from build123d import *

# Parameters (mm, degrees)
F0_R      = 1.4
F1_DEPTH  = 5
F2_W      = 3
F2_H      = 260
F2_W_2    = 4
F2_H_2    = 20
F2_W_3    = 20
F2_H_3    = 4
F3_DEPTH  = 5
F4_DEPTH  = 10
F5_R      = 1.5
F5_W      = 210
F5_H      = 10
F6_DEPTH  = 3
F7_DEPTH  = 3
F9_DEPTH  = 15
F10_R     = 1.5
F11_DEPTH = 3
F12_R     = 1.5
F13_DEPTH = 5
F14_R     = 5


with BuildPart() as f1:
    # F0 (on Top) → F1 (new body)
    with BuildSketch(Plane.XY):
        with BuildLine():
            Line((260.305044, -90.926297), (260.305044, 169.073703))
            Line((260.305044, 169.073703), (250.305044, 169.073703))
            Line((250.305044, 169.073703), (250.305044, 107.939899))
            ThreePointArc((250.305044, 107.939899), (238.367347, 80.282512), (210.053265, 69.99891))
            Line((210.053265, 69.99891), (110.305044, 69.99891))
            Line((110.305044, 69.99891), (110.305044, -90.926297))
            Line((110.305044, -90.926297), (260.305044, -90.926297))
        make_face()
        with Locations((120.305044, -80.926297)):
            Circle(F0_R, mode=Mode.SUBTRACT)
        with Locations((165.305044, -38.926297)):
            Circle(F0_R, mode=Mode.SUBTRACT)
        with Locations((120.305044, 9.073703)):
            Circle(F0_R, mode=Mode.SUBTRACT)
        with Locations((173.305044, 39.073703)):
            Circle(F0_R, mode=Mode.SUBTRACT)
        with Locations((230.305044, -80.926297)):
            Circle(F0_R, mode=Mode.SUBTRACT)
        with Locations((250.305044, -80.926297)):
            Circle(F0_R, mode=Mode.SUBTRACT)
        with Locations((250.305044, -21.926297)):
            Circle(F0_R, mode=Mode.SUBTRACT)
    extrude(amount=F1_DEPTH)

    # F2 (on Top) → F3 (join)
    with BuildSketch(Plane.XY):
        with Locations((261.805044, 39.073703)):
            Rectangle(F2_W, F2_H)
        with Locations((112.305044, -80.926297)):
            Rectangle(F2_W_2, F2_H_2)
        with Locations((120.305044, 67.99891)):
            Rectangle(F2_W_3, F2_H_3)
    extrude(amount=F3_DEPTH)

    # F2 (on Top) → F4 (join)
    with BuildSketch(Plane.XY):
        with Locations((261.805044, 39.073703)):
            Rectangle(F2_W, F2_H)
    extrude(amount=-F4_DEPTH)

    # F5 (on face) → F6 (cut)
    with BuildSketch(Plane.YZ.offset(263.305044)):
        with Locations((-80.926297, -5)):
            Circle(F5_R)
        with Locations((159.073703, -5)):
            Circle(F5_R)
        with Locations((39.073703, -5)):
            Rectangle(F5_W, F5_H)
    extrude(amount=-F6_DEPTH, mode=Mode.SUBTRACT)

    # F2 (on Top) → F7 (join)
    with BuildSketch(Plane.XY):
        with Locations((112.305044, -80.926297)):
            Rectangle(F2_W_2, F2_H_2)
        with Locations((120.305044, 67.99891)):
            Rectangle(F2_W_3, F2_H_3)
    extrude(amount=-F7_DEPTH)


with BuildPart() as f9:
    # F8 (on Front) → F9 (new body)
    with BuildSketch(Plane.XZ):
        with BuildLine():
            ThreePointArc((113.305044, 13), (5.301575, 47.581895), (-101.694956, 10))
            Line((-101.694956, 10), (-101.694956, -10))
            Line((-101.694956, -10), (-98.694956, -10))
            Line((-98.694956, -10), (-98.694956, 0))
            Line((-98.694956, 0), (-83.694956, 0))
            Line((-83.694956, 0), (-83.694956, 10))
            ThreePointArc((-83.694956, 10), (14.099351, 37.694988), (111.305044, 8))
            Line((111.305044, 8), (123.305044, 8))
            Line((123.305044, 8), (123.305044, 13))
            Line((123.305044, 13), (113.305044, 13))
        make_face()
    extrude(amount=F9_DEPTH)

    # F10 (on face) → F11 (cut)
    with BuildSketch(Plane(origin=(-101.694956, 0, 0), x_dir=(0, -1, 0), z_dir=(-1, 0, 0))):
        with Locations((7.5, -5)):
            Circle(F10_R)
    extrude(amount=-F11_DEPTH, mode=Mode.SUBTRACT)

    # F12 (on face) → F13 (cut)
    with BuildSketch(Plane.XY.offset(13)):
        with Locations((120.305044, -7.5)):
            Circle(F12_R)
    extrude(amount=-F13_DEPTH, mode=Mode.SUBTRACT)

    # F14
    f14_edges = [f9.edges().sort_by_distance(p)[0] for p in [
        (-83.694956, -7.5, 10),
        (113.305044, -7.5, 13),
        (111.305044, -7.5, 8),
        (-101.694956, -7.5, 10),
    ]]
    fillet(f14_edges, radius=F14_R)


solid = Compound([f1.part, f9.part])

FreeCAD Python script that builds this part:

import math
import FreeCAD as App
import Part
import Sketcher

V = App.Vector
Q = App.Units.Quantity


def edges_at(feature, points):
    """Names of the edges that pass closest to the given points."""
    edges = feature.Shape.Edges
    near = lambda p: min(range(len(edges)), key=lambda i: edges[i].distToShape(Part.Vertex(*p))[0])
    return sorted({f"Edge{near(p) + 1}" for p in points})

doc = App.newDocument("Part")
body = doc.addObject("PartDesign::Body", "Body")

# Sketch on XY plane
sketch1 = body.newObject("Sketcher::SketchObject", "Sketch")
sketch1.AttachmentSupport = (doc.getObject("XY_Plane"), [""])
sketch1.MapMode = "FlatFace"
sketch1.addGeometry([
    Part.LineSegment(V(260.305044, -90.926297, 0), V(260.305044, 169.073703, 0)),  # 0
    Part.LineSegment(V(260.305044, 169.073703, 0), V(250.305044, 169.073703, 0)),  # 1
    Part.LineSegment(V(250.305044, 169.073703, 0), V(250.305044, 107.939899, 0)),  # 2
    Part.ArcOfCircle(Part.Circle(V(212.297725, 107.9399, 0), V(0, 0, 1), 38.007319), math.radians(-93.385477), math.radians(-0.000002)),  # 3
    Part.LineSegment(V(210.053265, 69.99891, 0), V(110.305044, 69.99891, 0)),  # 4
    Part.LineSegment(V(110.305044, 69.99891, 0), V(110.305044, -90.926297, 0)),  # 5
    Part.LineSegment(V(110.305044, -90.926297, 0), V(260.305044, -90.926297, 0)),  # 6
    Part.Circle(V(120.305044, -80.926297, 0), V(0, 0, 1), 1.4),  # 7
    Part.Circle(V(165.305044, -38.926297, 0), V(0, 0, 1), 1.4),  # 8
    Part.Circle(V(230.305044, -80.926297, 0), V(0, 0, 1), 1.4),  # 9
    Part.Circle(V(250.305044, -80.926297, 0), V(0, 0, 1), 1.4),  # 10
    Part.Circle(V(250.305044, -21.926297, 0), V(0, 0, 1), 1.4),  # 11
    Part.Circle(V(120.305044, 9.073703, 0), V(0, 0, 1), 1.4),  # 12
    Part.Circle(V(173.305044, 39.073703, 0), V(0, 0, 1), 1.4),  # 13
], False)
sketch1.addConstraint([
    Sketcher.Constraint("Coincident", 0, 2, 1, 1),
    Sketcher.Constraint("Coincident", 1, 2, 2, 1),
    Sketcher.Constraint("Tangent", 2, 2, 3, 2),
    Sketcher.Constraint("Coincident", 3, 1, 4, 1),
    Sketcher.Constraint("Coincident", 4, 2, 5, 1),
    Sketcher.Constraint("Coincident", 5, 2, 6, 1),
    Sketcher.Constraint("Coincident", 6, 2, 0, 1),
    Sketcher.Constraint("Vertical", 0),
    Sketcher.Constraint("Horizontal", 1),
    Sketcher.Constraint("Vertical", 2),
    Sketcher.Constraint("Horizontal", 4),
    Sketcher.Constraint("Vertical", 5),
    Sketcher.Constraint("Horizontal", 6),
    Sketcher.Constraint("Equal", 7, 8),
    Sketcher.Constraint("Equal", 8, 9),
    Sketcher.Constraint("Equal", 9, 10),
    Sketcher.Constraint("Equal", 10, 11),
    Sketcher.Constraint("Equal", 11, 12),
    Sketcher.Constraint("Equal", 12, 13),
    Sketcher.Constraint("Horizontal", 7, 3, 9, 3),
    Sketcher.Constraint("Horizontal", 9, 3, 10, 3),
    Sketcher.Constraint("Vertical", 10, 3, 11, 3),
    Sketcher.Constraint("Vertical", 7, 3, 12, 3),
    Sketcher.Constraint("Vertical", 11, 3, 1, 2),
    Sketcher.Constraint("Diameter", 7, Q("2.8 mm")),
    Sketcher.Constraint("DistanceX", 1, 2, 1, 1, Q("10 mm")),
    Sketcher.Constraint("DistanceX", 6, 1, 6, 2, Q("150 mm")),
    Sketcher.Constraint("DistanceY", 0, 1, 0, 2, Q("260 mm")),
    Sketcher.Constraint("DistanceX", 7, 3, 8, 3, Q("45 mm")),
    Sketcher.Constraint("DistanceY", 7, 3, 8, 3, Q("42 mm")),
    Sketcher.Constraint("DistanceX", 8, 3, 9, 3, Q("65 mm")),
    Sketcher.Constraint("DistanceX", 9, 3, 10, 3, Q("20 mm")),
    Sketcher.Constraint("DistanceY", 10, 3, 11, 3, Q("59 mm")),
    Sketcher.Constraint("DistanceY", 8, 3, 12, 3, Q("48 mm")),
    Sketcher.Constraint("DistanceX", 12, 3, 13, 3, Q("53 mm")),
    Sketcher.Constraint("DistanceY", 12, 3, 13, 3, Q("30 mm")),
    Sketcher.Constraint("DistanceY", 13, 3, 0, 2, Q("130 mm")),
    Sketcher.Constraint("Radius", 3, Q("38.007319 mm")),
    Sketcher.Constraint("DistanceX", 4, 2, 4, 1, Q("99.748221 mm")),
    Sketcher.Constraint("DistanceY", -1, 1, 3, 3, Q("107.9399 mm")),
    Sketcher.Constraint("DistanceY", 2, 2, 2, 1, Q("61.133804 mm")),
    Sketcher.Constraint("DistanceX", -1, 1, 3, 3, Q("212.297725 mm")),
])
pad1 = body.newObject("PartDesign::Pad", "Pad")
pad1.Profile = sketch1
pad1.Length = 5

# Sketch on XY plane
sketch2 = body.newObject("Sketcher::SketchObject", "Sketch001")
sketch2.AttachmentSupport = (doc.getObject("XY_Plane"), [""])
sketch2.MapMode = "FlatFace"
sketch2.addGeometry([
    Part.LineSegment(V(260.305044, 169.073703, 0), V(260.305044, -90.926297, 0)),  # 0
    Part.LineSegment(V(260.305044, -90.926297, 0), V(263.305044, -90.926297, 0)),  # 1
    Part.LineSegment(V(263.305044, -90.926297, 0), V(263.305044, 169.073703, 0)),  # 2
    Part.LineSegment(V(263.305044, 169.073703, 0), V(260.305044, 169.073703, 0)),  # 3
    Part.LineSegment(V(110.305044, -70.926297, 0), V(110.305044, -90.926297, 0)),  # 4
    Part.LineSegment(V(110.305044, -90.926297, 0), V(114.305044, -90.926297, 0)),  # 5
    Part.LineSegment(V(114.305044, -90.926297, 0), V(114.305044, -70.926297, 0)),  # 6
    Part.LineSegment(V(114.305044, -70.926297, 0), V(110.305044, -70.926297, 0)),  # 7
    Part.LineSegment(V(110.305044, 69.99891, 0), V(110.305044, 65.99891, 0)),  # 8
    Part.LineSegment(V(110.305044, 65.99891, 0), V(130.305044, 65.99891, 0)),  # 9
    Part.LineSegment(V(130.305044, 65.99891, 0), V(130.305044, 69.99891, 0)),  # 10
    Part.LineSegment(V(130.305044, 69.99891, 0), V(110.305044, 69.99891, 0)),  # 11
], False)
sketch2.addConstraint([
    Sketcher.Constraint("Coincident", 0, 2, 1, 1),
    Sketcher.Constraint("Coincident", 1, 2, 2, 1),
    Sketcher.Constraint("Coincident", 2, 2, 3, 1),
    Sketcher.Constraint("Coincident", 3, 2, 0, 1),
    Sketcher.Constraint("Coincident", 4, 2, 5, 1),
    Sketcher.Constraint("Coincident", 5, 2, 6, 1),
    Sketcher.Constraint("Coincident", 6, 2, 7, 1),
    Sketcher.Constraint("Coincident", 7, 2, 4, 1),
    Sketcher.Constraint("Coincident", 8, 2, 9, 1),
    Sketcher.Constraint("Coincident", 9, 2, 10, 1),
    Sketcher.Constraint("Coincident", 10, 2, 11, 1),
    Sketcher.Constraint("Coincident", 11, 2, 8, 1),
    Sketcher.Constraint("Vertical", 0),
    Sketcher.Constraint("Horizontal", 1),
    Sketcher.Constraint("Vertical", 2),
    Sketcher.Constraint("Horizontal", 3),
    Sketcher.Constraint("Vertical", 4),
    Sketcher.Constraint("Horizontal", 5),
    Sketcher.Constraint("Vertical", 6),
    Sketcher.Constraint("Horizontal", 7),
    Sketcher.Constraint("Vertical", 8),
    Sketcher.Constraint("Horizontal", 9),
    Sketcher.Constraint("Vertical", 10),
    Sketcher.Constraint("Horizontal", 11),
    Sketcher.Constraint("Horizontal", 1, 2, 4, 2),
    Sketcher.Constraint("Vertical", 7, 2, 8, 2),
    Sketcher.Constraint("Equal", 11, 4),
    Sketcher.Constraint("Equal", 7, 8),
    Sketcher.Constraint("DistanceX", 1, 1, 1, 2, Q("3 mm")),
    Sketcher.Constraint("DistanceX", 5, 1, 5, 2, Q("4 mm")),
    Sketcher.Constraint("DistanceX", 9, 1, 9, 2, Q("20 mm")),
    Sketcher.Constraint("DistanceY", 0, 2, 0, 1, Q("260 mm")),
    Sketcher.Constraint("DistanceX", 4, 2, 0, 2, Q("150 mm")),
    Sketcher.Constraint("DistanceY", -1, 1, 8, 2, Q("65.99891 mm")),
    Sketcher.Constraint("DistanceX", -1, 1, 0, 2, Q("260.305044 mm")),
    Sketcher.Constraint("DistanceY", 0, 2, -1, 1, Q("90.926297 mm")),
])
pad2 = body.newObject("PartDesign::Pad", "Pad001")
pad2.Profile = sketch2
pad2.Length = 5

# Sketch on XY plane
sketch3 = body.newObject("Sketcher::SketchObject", "Sketch002")
sketch3.AttachmentSupport = (doc.getObject("XY_Plane"), [""])
sketch3.MapMode = "FlatFace"
sketch3.addGeometry([
    Part.LineSegment(V(260.305044, 169.073703, 0), V(260.305044, -90.926297, 0)),
    Part.LineSegment(V(260.305044, -90.926297, 0), V(263.305044, -90.926297, 0)),
    Part.LineSegment(V(263.305044, -90.926297, 0), V(263.305044, 169.073703, 0)),
    Part.LineSegment(V(263.305044, 169.073703, 0), V(260.305044, 169.073703, 0)),
], False)
sketch3.addConstraint([
    Sketcher.Constraint("Coincident", 0, 2, 1, 1),
    Sketcher.Constraint("Coincident", 1, 2, 2, 1),
    Sketcher.Constraint("Coincident", 2, 2, 3, 1),
    Sketcher.Constraint("Coincident", 3, 2, 0, 1),
    Sketcher.Constraint("Vertical", 0),
    Sketcher.Constraint("Horizontal", 1),
    Sketcher.Constraint("Vertical", 2),
    Sketcher.Constraint("Horizontal", 3),
    Sketcher.Constraint("DistanceX", 1, 1, 1, 2, Q("3 mm")),
    Sketcher.Constraint("DistanceY", 0, 2, 0, 1, Q("260 mm")),
    Sketcher.Constraint("DistanceX", -1, 1, 0, 2, Q("260.305044 mm")),
    Sketcher.Constraint("DistanceY", 0, 2, -1, 1, Q("90.926297 mm")),
])
pad3 = body.newObject("PartDesign::Pad", "Pad002")
pad3.Profile = sketch3
pad3.Length = 10
pad3.Reversed = True

# Sketch on YZ plane
sketch4 = body.newObject("Sketcher::SketchObject", "Sketch003")
sketch4.AttachmentSupport = (doc.getObject("YZ_Plane"), [""])
sketch4.MapMode = "FlatFace"
sketch4.AttachmentOffset = App.Placement(V(0, 0, 263.305044), App.Rotation())
sketch4.addGeometry([
    Part.Circle(V(-80.926297, -5, 0), V(0, 0, 1), 1.5),  # 0
    Part.Circle(V(159.073703, -5, 0), V(0, 0, 1), 1.5),  # 1
    Part.LineSegment(V(-65.926297, 0, 0), V(-65.926297, -10, 0)),  # 2
    Part.LineSegment(V(-65.926297, -10, 0), V(144.073703, -10, 0)),  # 3
    Part.LineSegment(V(144.073703, -10, 0), V(144.073703, 0, 0)),  # 4
    Part.LineSegment(V(144.073703, 0, 0), V(-65.926297, 0, 0)),  # 5
], False)
sketch4.addConstraint([
    Sketcher.Constraint("Coincident", 2, 2, 3, 1),
    Sketcher.Constraint("Coincident", 3, 2, 4, 1),
    Sketcher.Constraint("Coincident", 4, 2, 5, 1),
    Sketcher.Constraint("Coincident", 5, 2, 2, 1),
    Sketcher.Constraint("Vertical", 2),
    Sketcher.Constraint("Horizontal", 3),
    Sketcher.Constraint("Vertical", 4),
    Sketcher.Constraint("Horizontal", 5),
    Sketcher.Constraint("Equal", 0, 1),
    Sketcher.Constraint("PointOnObject", 4, 2, -1),
    Sketcher.Constraint("Horizontal", 0, 3, 1, 3),
    Sketcher.Constraint("Diameter", 0, Q("3 mm")),
    Sketcher.Constraint("DistanceX", 3, 1, 3, 2, Q("210 mm")),
    Sketcher.Constraint("DistanceY", 2, 2, 2, 1, Q("10 mm")),
    Sketcher.Constraint("DistanceY", 0, 3, -1, 1, Q("5 mm")),
    Sketcher.Constraint("DistanceX", 0, 3, 1, 3, Q("240 mm")),
    Sketcher.Constraint("DistanceX", 0, 3, 2, 2, Q("15 mm")),
    Sketcher.Constraint("DistanceX", 0, 3, -1, 1, Q("80.926297 mm")),
])
pocket1 = body.newObject("PartDesign::Pocket", "Pocket")
pocket1.Profile = sketch4
pocket1.Length = 3

# Sketch on XY plane
sketch5 = body.newObject("Sketcher::SketchObject", "Sketch004")
sketch5.AttachmentSupport = (doc.getObject("XY_Plane"), [""])
sketch5.MapMode = "FlatFace"
sketch5.addGeometry([
    Part.LineSegment(V(110.305044, -70.926297, 0), V(110.305044, -90.926297, 0)),  # 0
    Part.LineSegment(V(110.305044, -90.926297, 0), V(114.305044, -90.926297, 0)),  # 1
    Part.LineSegment(V(114.305044, -90.926297, 0), V(114.305044, -70.926297, 0)),  # 2
    Part.LineSegment(V(114.305044, -70.926297, 0), V(110.305044, -70.926297, 0)),  # 3
    Part.LineSegment(V(110.305044, 69.99891, 0), V(110.305044, 65.99891, 0)),  # 4
    Part.LineSegment(V(110.305044, 65.99891, 0), V(130.305044, 65.99891, 0)),  # 5
    Part.LineSegment(V(130.305044, 65.99891, 0), V(130.305044, 69.99891, 0)),  # 6
    Part.LineSegment(V(130.305044, 69.99891, 0), V(110.305044, 69.99891, 0)),  # 7
], False)
sketch5.addConstraint([
    Sketcher.Constraint("Coincident", 0, 2, 1, 1),
    Sketcher.Constraint("Coincident", 1, 2, 2, 1),
    Sketcher.Constraint("Coincident", 2, 2, 3, 1),
    Sketcher.Constraint("Coincident", 3, 2, 0, 1),
    Sketcher.Constraint("Coincident", 4, 2, 5, 1),
    Sketcher.Constraint("Coincident", 5, 2, 6, 1),
    Sketcher.Constraint("Coincident", 6, 2, 7, 1),
    Sketcher.Constraint("Coincident", 7, 2, 4, 1),
    Sketcher.Constraint("Vertical", 0),
    Sketcher.Constraint("Horizontal", 1),
    Sketcher.Constraint("Vertical", 2),
    Sketcher.Constraint("Horizontal", 3),
    Sketcher.Constraint("Vertical", 4),
    Sketcher.Constraint("Horizontal", 5),
    Sketcher.Constraint("Vertical", 6),
    Sketcher.Constraint("Horizontal", 7),
    Sketcher.Constraint("Vertical", 3, 2, 4, 2),
    Sketcher.Constraint("Equal", 7, 0),
    Sketcher.Constraint("Equal", 3, 4),
    Sketcher.Constraint("DistanceX", 1, 1, 1, 2, Q("4 mm")),
    Sketcher.Constraint("DistanceX", 5, 1, 5, 2, Q("20 mm")),
    Sketcher.Constraint("DistanceY", -1, 1, 4, 2, Q("65.99891 mm")),
    Sketcher.Constraint("DistanceX", -1, 1, 0, 2, Q("110.305044 mm")),
    Sketcher.Constraint("DistanceY", 0, 2, -1, 1, Q("90.926297 mm")),
])
pad4 = body.newObject("PartDesign::Pad", "Pad003")
pad4.Profile = sketch5
pad4.Length = 3
pad4.Reversed = True
body2 = doc.addObject("PartDesign::Body", "Body001")

# Sketch on XZ plane
sketch6 = body2.newObject("Sketcher::SketchObject", "Sketch005")
sketch6.AttachmentSupport = (doc.getObject("XZ_Plane001"), [""])
sketch6.MapMode = "FlatFace"
sketch6.addGeometry([
    Part.ArcOfCircle(Part.Circle(V(7.78781, -130.59823, 0), V(0, 0, 1), 178.19747), math.radians(53.691229), math.radians(127.907619)),  # 0
    Part.LineSegment(V(-101.694956, 10, 0), V(-101.694956, -10, 0)),  # 1
    Part.LineSegment(V(-101.694956, -10, 0), V(-98.694956, -10, 0)),  # 2
    Part.LineSegment(V(-98.694956, -10, 0), V(-98.694956, 0, 0)),  # 3
    Part.LineSegment(V(-98.694956, 0, 0), V(-83.694956, 0, 0)),  # 4
    Part.LineSegment(V(-83.694956, 0, 0), V(-83.694956, 10, 0)),  # 5
    Part.ArcOfCircle(Part.Circle(V(12.253295, -142.295544, 0), V(0, 0, 1), 179.999999), math.radians(56.613261), math.radians(122.211482)),  # 6
    Part.LineSegment(V(111.305044, 8, 0), V(123.305044, 8, 0)),  # 7
    Part.LineSegment(V(123.305044, 8, 0), V(123.305044, 13, 0)),  # 8
    Part.LineSegment(V(123.305044, 13, 0), V(113.305044, 13, 0)),  # 9
], False)
sketch6.addConstraint([
    Sketcher.Constraint("Coincident", 0, 2, 1, 1),
    Sketcher.Constraint("Coincident", 1, 2, 2, 1),
    Sketcher.Constraint("Coincident", 2, 2, 3, 1),
    Sketcher.Constraint("Coincident", 3, 2, 4, 1),
    Sketcher.Constraint("Coincident", 4, 2, 5, 1),
    Sketcher.Constraint("Coincident", 5, 2, 6, 2),
    Sketcher.Constraint("Coincident", 6, 1, 7, 1),
    Sketcher.Constraint("Coincident", 7, 2, 8, 1),
    Sketcher.Constraint("Coincident", 8, 2, 9, 1),
    Sketcher.Constraint("Coincident", 9, 2, 0, 1),
    Sketcher.Constraint("Vertical", 1),
    Sketcher.Constraint("Horizontal", 2),
    Sketcher.Constraint("Vertical", 3),
    Sketcher.Constraint("Horizontal", 4),
    Sketcher.Constraint("Vertical", 5),
    Sketcher.Constraint("Horizontal", 7),
    Sketcher.Constraint("Vertical", 8),
    Sketcher.Constraint("Horizontal", 9),
    Sketcher.Constraint("PointOnObject", 3, 2, -1),
    Sketcher.Constraint("Horizontal", 0, 2, 5, 2),
    Sketcher.Constraint("Equal", 9, 3),
    Sketcher.Constraint("Equal", 3, 5),
    Sketcher.Constraint("Radius", 6, Q("179.999999 mm")),
    Sketcher.Constraint("DistanceX", 2, 1, 2, 2, Q("3 mm")),
    Sketcher.Constraint("DistanceX", 4, 1, 4, 2, Q("15 mm")),
    Sketcher.Constraint("DistanceX", 7, 1, 7, 2, Q("12 mm")),
    Sketcher.Constraint("DistanceX", 9, 2, 9, 1, Q("10 mm")),
    Sketcher.Constraint("DistanceY", 8, 1, 8, 2, Q("5 mm")),
    Sketcher.Constraint("DistanceY", -1, 1, 6, 1, Q("8 mm")),
    Sketcher.Constraint("DistanceX", 5, 2, 6, 1, Q("195 mm")),
    Sketcher.Constraint("Radius", 0, Q("178.19747 mm")),
    Sketcher.Constraint("DistanceX", -1, 1, 0, 3, Q("7.78781 mm")),
])
pad5 = body2.newObject("PartDesign::Pad", "Pad004")
pad5.Profile = sketch6
pad5.Length = 15

# Sketch on YZ plane
sketch7 = body2.newObject("Sketcher::SketchObject", "Sketch006")
sketch7.AttachmentSupport = (doc.getObject("YZ_Plane001"), [""])
sketch7.MapMode = "FlatFace"
sketch7.AttachmentOffset = App.Placement(V(0, 0, -101.694956), App.Rotation())
sketch7.addGeometry(Part.Circle(V(-7.5, -5, 0), V(0, 0, 1), 1.5), False)
sketch7.addConstraint([
    Sketcher.Constraint("Diameter", 0, Q("3 mm")),
    Sketcher.Constraint("DistanceY", 0, 3, -1, 1, Q("5 mm")),
    Sketcher.Constraint("DistanceX", 0, 3, -1, 1, Q("7.5 mm")),
])
pocket2 = body2.newObject("PartDesign::Pocket", "Pocket001")
pocket2.Profile = sketch7
pocket2.Length = 3
pocket2.Reversed = True

# Sketch on XY plane
sketch8 = body2.newObject("Sketcher::SketchObject", "Sketch007")
sketch8.AttachmentSupport = (doc.getObject("XY_Plane001"), [""])
sketch8.MapMode = "FlatFace"
sketch8.AttachmentOffset = App.Placement(V(0, 0, 13), App.Rotation())
sketch8.addGeometry(Part.Circle(V(120.305044, -7.5, 0), V(0, 0, 1), 1.5), False)
sketch8.addConstraint([
    Sketcher.Constraint("Diameter", 0, Q("3 mm")),
    Sketcher.Constraint("DistanceY", 0, 3, -1, 1, Q("7.5 mm")),
    Sketcher.Constraint("DistanceX", -1, 1, 0, 3, Q("120.305044 mm")),
])
pocket3 = body2.newObject("PartDesign::Pocket", "Pocket002")
pocket3.Profile = sketch8
pocket3.Length = 5
doc.recompute()

fillet = body2.newObject("PartDesign::Fillet", "Fillet")
fillet.Base = (pocket3, edges_at(pocket3, [
    (-83.695, -7.5, 10),
    (113.305, -7.5, 13),
    (111.305, -7.5, 8),
    (-101.695, -7.5, 10),
]))
fillet.Radius = 5

doc.recompute()
